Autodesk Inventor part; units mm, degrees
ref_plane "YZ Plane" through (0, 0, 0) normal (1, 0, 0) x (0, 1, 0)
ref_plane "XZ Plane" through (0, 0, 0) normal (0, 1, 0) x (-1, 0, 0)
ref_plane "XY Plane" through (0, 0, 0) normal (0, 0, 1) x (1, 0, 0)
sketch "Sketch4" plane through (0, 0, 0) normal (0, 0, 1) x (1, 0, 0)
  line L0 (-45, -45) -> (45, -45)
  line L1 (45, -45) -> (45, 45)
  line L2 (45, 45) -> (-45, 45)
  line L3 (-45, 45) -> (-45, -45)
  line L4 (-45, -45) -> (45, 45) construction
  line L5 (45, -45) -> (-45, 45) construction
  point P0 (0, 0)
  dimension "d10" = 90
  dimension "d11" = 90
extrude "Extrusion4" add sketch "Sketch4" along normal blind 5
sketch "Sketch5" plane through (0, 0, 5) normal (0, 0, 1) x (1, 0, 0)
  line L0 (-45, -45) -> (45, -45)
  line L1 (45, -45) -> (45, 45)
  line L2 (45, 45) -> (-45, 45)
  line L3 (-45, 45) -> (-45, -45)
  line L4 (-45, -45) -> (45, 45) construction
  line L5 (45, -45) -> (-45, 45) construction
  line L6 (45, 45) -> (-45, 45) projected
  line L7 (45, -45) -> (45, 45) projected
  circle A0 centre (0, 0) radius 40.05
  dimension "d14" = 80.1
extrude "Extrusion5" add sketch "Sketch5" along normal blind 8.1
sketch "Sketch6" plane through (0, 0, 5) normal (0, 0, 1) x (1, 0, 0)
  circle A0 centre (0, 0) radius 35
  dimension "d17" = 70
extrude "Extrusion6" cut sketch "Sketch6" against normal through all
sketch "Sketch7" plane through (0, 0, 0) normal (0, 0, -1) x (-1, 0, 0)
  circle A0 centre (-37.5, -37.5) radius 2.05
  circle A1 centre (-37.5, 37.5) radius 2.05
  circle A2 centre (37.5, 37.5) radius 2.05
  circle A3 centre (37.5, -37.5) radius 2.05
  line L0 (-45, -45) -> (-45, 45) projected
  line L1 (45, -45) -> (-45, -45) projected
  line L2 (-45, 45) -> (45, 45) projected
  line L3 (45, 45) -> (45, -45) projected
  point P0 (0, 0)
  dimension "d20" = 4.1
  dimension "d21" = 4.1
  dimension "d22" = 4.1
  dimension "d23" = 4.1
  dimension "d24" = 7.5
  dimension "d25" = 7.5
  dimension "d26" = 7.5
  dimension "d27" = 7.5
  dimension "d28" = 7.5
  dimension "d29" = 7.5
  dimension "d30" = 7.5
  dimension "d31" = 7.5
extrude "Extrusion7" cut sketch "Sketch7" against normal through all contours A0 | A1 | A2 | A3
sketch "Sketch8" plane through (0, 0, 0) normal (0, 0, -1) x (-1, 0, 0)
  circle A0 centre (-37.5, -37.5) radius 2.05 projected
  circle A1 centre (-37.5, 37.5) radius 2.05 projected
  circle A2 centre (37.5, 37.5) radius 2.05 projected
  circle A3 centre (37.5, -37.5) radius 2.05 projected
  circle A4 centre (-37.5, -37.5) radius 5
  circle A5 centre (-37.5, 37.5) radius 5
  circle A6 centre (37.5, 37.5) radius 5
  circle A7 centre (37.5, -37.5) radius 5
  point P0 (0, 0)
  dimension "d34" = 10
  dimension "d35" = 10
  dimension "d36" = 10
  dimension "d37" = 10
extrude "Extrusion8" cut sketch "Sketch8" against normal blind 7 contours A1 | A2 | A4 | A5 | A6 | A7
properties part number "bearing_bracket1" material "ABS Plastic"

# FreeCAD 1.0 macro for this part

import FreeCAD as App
import Part
import Sketcher
from FreeCAD import Vector


def add_polygon(sketch, points):
    """Adds a closed chain of lines whose ends are joined by coincident constraints."""
    first, n = sketch.GeometryCount, len(points)
    for a, b in zip(points, points[1:] + points[:1]):
        sketch.addGeometry(Part.LineSegment(App.Vector(*a, 0), App.Vector(*b, 0)), False)
    for i in range(n):
        sketch.addConstraint(Sketcher.Constraint("Coincident", first + i, 2, first + (i + 1) % n, 1))

doc = App.newDocument("Part")
body = doc.addObject("PartDesign::Body", "Body")

# Sketch on XY plane
sketch1 = body.newObject("Sketcher::SketchObject", "Sketch")
sketch1.AttachmentSupport = (doc.getObject("XY_Plane"), [""])
sketch1.MapMode = "FlatFace"
add_polygon(sketch1, [(-45, 45), (-45, -45), (45, -45), (45, 45)])  # lines 0-3
sketch1.addConstraint([
    Sketcher.Constraint("Vertical", 0),
    Sketcher.Constraint("Horizontal", 1),
    Sketcher.Constraint("Vertical", 2),
    Sketcher.Constraint("Horizontal", 3),
    Sketcher.Constraint("Symmetric", 0, 2, 2, 2, -1, 1),
    Sketcher.Constraint("Equal", 3, 0),
    Sketcher.Constraint("DistanceX", 1, 1, 1, 2, 90.0),
])
pad1 = body.newObject("PartDesign::Pad", "Pad")
pad1.Profile = sketch1
pad1.Length = 5

# Sketch on XY plane
sketch2 = body.newObject("Sketcher::SketchObject", "Sketch001")
sketch2.AttachmentSupport = (doc.getObject("XY_Plane"), [""])
sketch2.MapMode = "FlatFace"
sketch2.AttachmentOffset = App.Placement(Vector(0, 0, 5), App.Rotation())
add_polygon(sketch2, [(-45, 45), (-45, -45), (45, -45), (45, 45)])  # lines 0-3
sketch2.addGeometry(Part.Circle(Vector(0, 0, 0), Vector(0, 0, 1), 40.05), False)  # 4
sketch2.addConstraint([
    Sketcher.Constraint("Vertical", 0),
    Sketcher.Constraint("Horizontal", 1),
    Sketcher.Constraint("Vertical", 2),
    Sketcher.Constraint("Horizontal", 3),
    Sketcher.Constraint("Coincident", 4, 3, -1, 1),
    Sketcher.Constraint("Symmetric", 0, 2, 2, 2, -1, 1),
    Sketcher.Constraint("Equal", 3, 0),
    Sketcher.Constraint("Diameter", 4, 80.1),
    Sketcher.Constraint("DistanceX", 1, 1, 1, 2, 90.0),
])
pad2 = body.newObject("PartDesign::Pad", "Pad001")
pad2.Profile = sketch2
pad2.Length = 8.1

# Sketch on XY plane
sketch3 = body.newObject("Sketcher::SketchObject", "Sketch002")
sketch3.AttachmentSupport = (doc.getObject("XY_Plane"), [""])
sketch3.MapMode = "FlatFace"
sketch3.AttachmentOffset = App.Placement(Vector(0, 0, 5), App.Rotation())
sketch3.addGeometry(Part.Circle(Vector(0, 0, 0), Vector(0, 0, 1), 35), False)
sketch3.addConstraint([
    Sketcher.Constraint("Coincident", 0, 3, -1, 1),
    Sketcher.Constraint("Diameter", 0, 70.0),
])
pocket1 = body.newObject("PartDesign::Pocket", "Pocket")
pocket1.Profile = sketch3
pocket1.Type = "ThroughAll"

# Sketch on XY plane
sketch4 = body.newObject("Sketcher::SketchObject", "Sketch003")
sketch4.AttachmentSupport = (doc.getObject("XY_Plane"), [""])
sketch4.MapMode = "FlatFace"
sketch4.addGeometry([
    Part.Circle(Vector(37.5, -37.5, 0), Vector(0, 0, 1), 2.05),
    Part.Circle(Vector(37.5, 37.5, 0), Vector(0, 0, 1), 2.05),
    Part.Circle(Vector(-37.5, 37.5, 0), Vector(0, 0, 1), 2.05),
    Part.Circle(Vector(-37.5, -37.5, 0), Vector(0, 0, 1), 2.05),
], False)
sketch4.addConstraint([
    Sketcher.Constraint("Equal", 0, 1),
    Sketcher.Constraint("Equal", 1, 2),
    Sketcher.Constraint("Equal", 2, 3),
    Sketcher.Constraint("Symmetric", 0, 3, 2, 3, -1, 1),
    Sketcher.Constraint("Symmetric", 1, 3, 3, 3, -1, 1),
    Sketcher.Constraint("Symmetric", 1, 3, 2, 3, -2),
    Sketcher.Constraint("Diameter", 0, 4.1),
    Sketcher.Constraint("DistanceY", 0, 3, 1, 3, 75.0),
    Sketcher.Constraint("DistanceX", 2, 3, 1, 3, 75.0),
])
pocket2 = body.newObject("PartDesign::Pocket", "Pocket001")
pocket2.Profile = sketch4
pocket2.Type = "ThroughAll"
pocket2.Reversed = True

# Sketch on XY plane
sketch5 = body.newObject("Sketcher::SketchObject", "Sketch004")
sketch5.AttachmentSupport = (doc.getObject("XY_Plane"), [""])
sketch5.MapMode = "FlatFace"
sketch5.addGeometry([
    Part.Circle(Vector(37.5, 37.5, 0), Vector(0, 0, 1), 5),  # 0
    Part.Circle(Vector(-37.5, 37.5, 0), Vector(0, 0, 1), 5),  # 1
    Part.Circle(Vector(37.5, -37.5, 0), Vector(0, 0, 1), 5),  # 2
    Part.Circle(Vector(37.5, -37.5, 0), Vector(0, 0, 1), 2.05),  # 3
    Part.Circle(Vector(-37.5, -37.5, 0), Vector(0, 0, 1), 5),  # 4
    Part.Circle(Vector(-37.5, -37.5, 0), Vector(0, 0, 1), 2.05),  # 5
], False)
sketch5.addConstraint([
    Sketcher.Constraint("Coincident", 3, 3, 2, 3),
    Sketcher.Constraint("Coincident", 5, 3, 4, 3),
    Sketcher.Constraint("Equal", 0, 1),
    Sketcher.Constraint("Equal", 1, 2),
    Sketcher.Constraint("Equal", 2, 4),
    Sketcher.Constraint("Equal", 3, 5),
    Sketcher.Constraint("Symmetric", 1, 3, 2, 3, -1, 1),
    Sketcher.Constraint("Symmetric", 0, 3, 4, 3, -1, 1),
    Sketcher.Constraint("Symmetric", 0, 3, 1, 3, -2),
    Sketcher.Constraint("Diameter", 0, 10.0),
    Sketcher.Constraint("Diameter", 3, 4.1),
    Sketcher.Constraint("DistanceX", 1, 3, 0, 3, 75.0),
    Sketcher.Constraint("DistanceY", 2, 3, 0, 3, 75.0),
])
pocket3 = body.newObject("PartDesign::Pocket", "Pocket002")
pocket3.Profile = sketch5
pocket3.Length = 7
pocket3.Reversed = True

doc.recompute()
